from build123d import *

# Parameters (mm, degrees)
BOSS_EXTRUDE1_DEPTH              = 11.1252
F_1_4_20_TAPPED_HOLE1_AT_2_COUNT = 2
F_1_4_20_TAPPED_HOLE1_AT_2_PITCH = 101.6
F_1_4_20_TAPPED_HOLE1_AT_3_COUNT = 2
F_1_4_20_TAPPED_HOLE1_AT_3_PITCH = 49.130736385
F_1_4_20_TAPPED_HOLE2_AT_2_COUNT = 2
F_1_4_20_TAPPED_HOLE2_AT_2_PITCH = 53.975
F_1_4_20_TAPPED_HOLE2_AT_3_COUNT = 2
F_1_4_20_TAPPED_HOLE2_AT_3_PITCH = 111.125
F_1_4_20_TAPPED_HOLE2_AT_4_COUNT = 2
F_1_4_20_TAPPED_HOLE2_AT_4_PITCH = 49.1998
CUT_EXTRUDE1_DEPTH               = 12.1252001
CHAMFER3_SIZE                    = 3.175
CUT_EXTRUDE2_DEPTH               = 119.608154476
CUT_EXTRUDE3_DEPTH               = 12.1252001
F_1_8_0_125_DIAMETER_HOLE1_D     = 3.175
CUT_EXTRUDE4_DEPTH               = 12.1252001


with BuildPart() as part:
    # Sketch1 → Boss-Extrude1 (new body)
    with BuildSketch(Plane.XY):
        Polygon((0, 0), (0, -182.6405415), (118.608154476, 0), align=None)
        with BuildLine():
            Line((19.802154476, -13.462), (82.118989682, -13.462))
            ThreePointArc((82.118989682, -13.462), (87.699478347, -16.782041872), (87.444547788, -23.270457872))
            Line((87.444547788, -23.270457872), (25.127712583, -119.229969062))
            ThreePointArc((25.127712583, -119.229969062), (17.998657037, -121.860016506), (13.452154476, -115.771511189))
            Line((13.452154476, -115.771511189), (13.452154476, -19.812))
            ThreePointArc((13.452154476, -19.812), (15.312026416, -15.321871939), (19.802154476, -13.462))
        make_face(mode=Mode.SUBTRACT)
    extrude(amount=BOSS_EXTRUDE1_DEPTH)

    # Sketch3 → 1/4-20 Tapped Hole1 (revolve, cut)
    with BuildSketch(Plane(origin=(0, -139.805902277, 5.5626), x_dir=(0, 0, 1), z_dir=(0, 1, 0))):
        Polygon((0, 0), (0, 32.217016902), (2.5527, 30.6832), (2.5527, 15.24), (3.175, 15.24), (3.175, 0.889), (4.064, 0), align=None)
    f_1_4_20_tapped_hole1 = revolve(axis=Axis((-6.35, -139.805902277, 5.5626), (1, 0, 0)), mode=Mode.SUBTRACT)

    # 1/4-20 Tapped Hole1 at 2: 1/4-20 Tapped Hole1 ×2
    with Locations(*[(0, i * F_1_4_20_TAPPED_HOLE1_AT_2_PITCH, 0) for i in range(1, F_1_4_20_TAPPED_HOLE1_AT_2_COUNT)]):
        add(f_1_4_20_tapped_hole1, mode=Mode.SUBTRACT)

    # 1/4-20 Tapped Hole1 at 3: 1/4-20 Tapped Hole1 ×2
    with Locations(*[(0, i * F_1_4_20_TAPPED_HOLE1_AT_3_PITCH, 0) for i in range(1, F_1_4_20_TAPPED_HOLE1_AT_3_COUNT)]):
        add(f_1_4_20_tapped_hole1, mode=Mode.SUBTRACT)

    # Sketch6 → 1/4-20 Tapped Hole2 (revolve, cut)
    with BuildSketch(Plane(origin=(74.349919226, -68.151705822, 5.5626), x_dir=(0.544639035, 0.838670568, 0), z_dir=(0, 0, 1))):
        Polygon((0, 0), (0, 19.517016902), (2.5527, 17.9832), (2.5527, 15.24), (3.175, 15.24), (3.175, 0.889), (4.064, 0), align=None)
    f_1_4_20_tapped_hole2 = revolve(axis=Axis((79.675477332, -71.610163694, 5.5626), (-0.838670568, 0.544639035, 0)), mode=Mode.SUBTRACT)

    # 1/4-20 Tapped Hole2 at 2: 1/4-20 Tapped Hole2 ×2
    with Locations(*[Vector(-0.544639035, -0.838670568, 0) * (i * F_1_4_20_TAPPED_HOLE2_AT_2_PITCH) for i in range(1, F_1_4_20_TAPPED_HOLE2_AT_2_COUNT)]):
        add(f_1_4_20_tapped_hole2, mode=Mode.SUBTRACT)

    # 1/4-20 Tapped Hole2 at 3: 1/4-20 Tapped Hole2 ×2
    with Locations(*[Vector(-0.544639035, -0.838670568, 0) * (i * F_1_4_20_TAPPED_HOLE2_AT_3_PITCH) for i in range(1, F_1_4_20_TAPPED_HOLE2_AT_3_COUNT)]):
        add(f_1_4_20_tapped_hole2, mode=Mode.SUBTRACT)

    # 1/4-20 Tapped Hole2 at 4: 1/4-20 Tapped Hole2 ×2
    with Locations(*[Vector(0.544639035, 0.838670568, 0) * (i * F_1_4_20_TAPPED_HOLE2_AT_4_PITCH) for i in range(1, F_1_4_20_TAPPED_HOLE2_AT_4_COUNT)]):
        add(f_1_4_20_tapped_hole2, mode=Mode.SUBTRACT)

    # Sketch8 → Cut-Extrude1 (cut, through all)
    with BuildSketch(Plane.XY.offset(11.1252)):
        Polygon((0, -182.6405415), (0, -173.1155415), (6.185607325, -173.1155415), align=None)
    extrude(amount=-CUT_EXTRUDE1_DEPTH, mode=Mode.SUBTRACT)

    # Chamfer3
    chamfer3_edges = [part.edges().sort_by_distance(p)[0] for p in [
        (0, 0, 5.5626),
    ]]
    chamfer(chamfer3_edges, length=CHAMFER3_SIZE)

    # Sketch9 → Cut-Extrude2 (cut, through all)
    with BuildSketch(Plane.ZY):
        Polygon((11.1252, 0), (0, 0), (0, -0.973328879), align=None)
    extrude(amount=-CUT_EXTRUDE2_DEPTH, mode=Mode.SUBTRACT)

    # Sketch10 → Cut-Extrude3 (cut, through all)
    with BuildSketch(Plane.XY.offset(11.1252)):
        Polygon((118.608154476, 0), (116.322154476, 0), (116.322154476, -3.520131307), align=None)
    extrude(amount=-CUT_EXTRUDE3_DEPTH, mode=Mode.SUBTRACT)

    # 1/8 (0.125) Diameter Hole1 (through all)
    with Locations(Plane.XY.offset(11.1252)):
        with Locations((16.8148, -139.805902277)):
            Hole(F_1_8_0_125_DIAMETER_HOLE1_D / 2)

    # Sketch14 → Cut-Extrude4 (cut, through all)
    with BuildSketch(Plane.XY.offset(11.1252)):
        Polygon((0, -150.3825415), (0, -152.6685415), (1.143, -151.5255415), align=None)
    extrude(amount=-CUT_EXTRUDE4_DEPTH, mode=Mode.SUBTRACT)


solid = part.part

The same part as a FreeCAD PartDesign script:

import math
import FreeCAD as App
import Part
import Sketcher
from FreeCAD import Vector
Q = App.Units.Quantity


def edges_at(feature, points):
    """Names of the edges that pass closest to the given points."""
    edges = feature.Shape.Edges
    near = lambda p: min(range(len(edges)), key=lambda i: edges[i].distToShape(Part.Vertex(*p))[0])
    return sorted({f"Edge{near(p) + 1}" for p in points})

doc = App.newDocument("Part")
body = doc.addObject("PartDesign::Body", "Body")

# Sketch on XY plane
sketch1 = doc.addObject("Sketcher::SketchObject", "Sketch")
body.addObject(sketch1)
sketch1.AttachmentSupport = (doc.XY_Plane, [""])
sketch1.MapMode = "FlatFace"
sketch1.addGeometry([
    Part.LineSegment(Vector(0, 0, 0), Vector(0, -183, 0)),  # 0
    Part.LineSegment(Vector(0, -183, 0), Vector(119, 0, 0)),  # 1
    Part.LineSegment(Vector(119, 0, 0), Vector(0, 0, 0)),  # 2
    Part.ArcOfCircle(Part.Circle(Vector(20, -20, 0), Vector(0, 0, 1), 6), math.radians(90), math.radians(180)),  # 3
    Part.LineSegment(Vector(20, -13, 0), Vector(82, -13, 0)),  # 4
    Part.ArcOfCircle(Part.Circle(Vector(82, -20, 0), Vector(0, 0, 1), 6), math.radians(-33), math.radians(90)),  # 5
    Part.LineSegment(Vector(87, -23, 0), Vector(25, -119, 0)),  # 6
    Part.ArcOfCircle(Part.Circle(Vector(20, -116, 0), Vector(0, 0, 1), 6), math.radians(180), math.radians(327)),  # 7
    Part.LineSegment(Vector(13, -116, 0), Vector(13, -20, 0)),  # 8
], False)
sketch1.addConstraint([
    Sketcher.Constraint("Coincident", 0, 2, 1, 1),
    Sketcher.Constraint("Coincident", 1, 2, 2, 1),
    Sketcher.Constraint("Coincident", 2, 2, 0, 1),
    Sketcher.Constraint("Tangent", 3, 1, 4, 1),
    Sketcher.Constraint("Tangent", 4, 2, 5, 2),
    Sketcher.Constraint("Tangent", 5, 1, 6, 1),
    Sketcher.Constraint("Tangent", 6, 2, 7, 2),
    Sketcher.Constraint("Tangent", 7, 1, 8, 1),
    Sketcher.Constraint("Tangent", 8, 2, 3, 2),
    Sketcher.Constraint("Vertical", 0),
    Sketcher.Constraint("Horizontal", 2),
    Sketcher.Constraint("Horizontal", 4),
    Sketcher.Constraint("Vertical", 8),
    Sketcher.Constraint("Coincident", 2, 2, -1, 1),
    Sketcher.Constraint("Equal", 3, 5),
    Sketcher.Constraint("Equal", 5, 7),
    Sketcher.Constraint("Parallel", 1, 6),
    Sketcher.Constraint("Radius", 3, Q("0.25 in")),
    Sketcher.Constraint("Angle", 1, Q("57 deg")),
    Sketcher.Constraint("DistanceY", 3, 3, -1, 1, Q("0.78 in")),
    Sketcher.Constraint("DistanceX", 3, 3, 1, 2, Q("3.89 in")),
    Sketcher.Constraint("Distance", 6, 114.418599),
    Sketcher.Constraint("DistanceY", 0, 2, 0, 1, 182.640542),
])
pad1 = doc.addObject("PartDesign::Pad", "Pad")
body.addObject(pad1)
pad1.Profile = sketch1
pad1.Length = Q("0.438 in")

# Sketch on XZ plane
sketch2 = doc.addObject("Sketcher::SketchObject", "Sketch001")
body.addObject(sketch2)
sketch2.AttachmentSupport = (doc.XZ_Plane, [""])
sketch2.MapMode = "FlatFace"
sketch2.AttachmentOffset = App.Placement(Vector(0, 0, 139.805902), App.Rotation())
sketch2.addGeometry([
    Part.LineSegment(Vector(32.2, 5.6, 0), Vector(0, 5.6, 0)),  # 0
    Part.LineSegment(Vector(0, 5.6, 0), Vector(0, 9.6, 0)),  # 1
    Part.LineSegment(Vector(0, 9.6, 0), Vector(0.9, 8.7, 0)),  # 2
    Part.LineSegment(Vector(0.9, 8.7, 0), Vector(15.2, 8.7, 0)),  # 3
    Part.LineSegment(Vector(15.2, 8.7, 0), Vector(15.2, 8.1, 0)),  # 4
    Part.LineSegment(Vector(15.2, 8.1, 0), Vector(30.7, 8.1, 0)),  # 5
    Part.LineSegment(Vector(30.7, 8.1, 0), Vector(32.2, 5.6, 0)),  # 6
], False)
sketch2.addGeometry(Part.LineSegment(Vector(0, 5.6, 0), Vector(32.2, 5.6, 0)), True)  # axis
sketch2.addConstraint([
    Sketcher.Constraint("Coincident", 0, 2, 1, 1),
    Sketcher.Constraint("Coincident", 1, 2, 2, 1),
    Sketcher.Constraint("Coincident", 2, 2, 3, 1),
    Sketcher.Constraint("Coincident", 3, 2, 4, 1),
    Sketcher.Constraint("Coincident", 4, 2, 5, 1),
    Sketcher.Constraint("Coincident", 5, 2, 6, 1),
    Sketcher.Constraint("Coincident", 6, 2, 0, 1),
    Sketcher.Constraint("Horizontal", 0),
    Sketcher.Constraint("Vertical", 1),
    Sketcher.Constraint("Horizontal", 3),
    Sketcher.Constraint("Vertical", 4),
    Sketcher.Constraint("Horizontal", 5),
    Sketcher.Constraint("Horizontal", 7),
    Sketcher.Constraint("Coincident", 7, 1, 0, 2),
    Sketcher.Constraint("PointOnObject", 0, 2, -2),
    Sketcher.Constraint("Equal", 0, 7),
    Sketcher.Constraint("Angle", 2, Q("-45 deg")),
    Sketcher.Constraint("Angle", 6, Q("-59 deg")),
    Sketcher.Constraint("DistanceY", 1, 1, 1, 2, Q("0.16 in")),
    Sketcher.Constraint("DistanceX", -1, 1, 3, 2, Q("0.6 in")),
    Sketcher.Constraint("DistanceX", 3, 1, 3, 2, Q("0.565 in")),
    Sketcher.Constraint("DistanceX", 5, 1, 5, 2, Q("0.608 in")),
    Sketcher.Constraint("DistanceY", 4, 2, 4, 1, Q("0.0245 in")),
    Sketcher.Constraint("DistanceY", -1, 1, 0, 2, Q("0.219 in")),
])
groove = doc.addObject("PartDesign::Groove", "Groove")
body.addObject(groove)
groove.Profile = sketch2
groove.ReferenceAxis = (sketch2, ["Axis0"])
groove.Angle = 360
doc.recompute()

linearpattern = doc.addObject("PartDesign::LinearPattern", "LinearPattern")
body.addObject(linearpattern)
linearpattern.Originals = [groove]
linearpattern.Direction = (doc.Y_Axis, [""])
linearpattern.Mode = "offset"
linearpattern.Offset = Q("4 in")
linearpattern.Occurrences = 2
body.Tip = linearpattern
doc.recompute()

linearpattern2 = doc.addObject("PartDesign::LinearPattern", "LinearPattern001")
body.addObject(linearpattern2)
linearpattern2.Originals = [groove]
linearpattern2.Direction = (doc.Y_Axis, [""])
linearpattern2.Mode = "offset"
linearpattern2.Offset = 49.130736
linearpattern2.Occurrences = 2
body.Tip = linearpattern2

# Sketch on XY plane
sketch3 = doc.addObject("Sketcher::SketchObject", "Sketch002")
body.addObject(sketch3)
sketch3.AttachmentSupport = (doc.XY_Plane, [""])
sketch3.MapMode = "FlatFace"
sketch3.AttachmentOffset = App.Placement(Vector(0, 0, 0.219 * 25.4), App.Rotation())
sketch3.addGeometry([
    Part.LineSegment(Vector(58, -57.5, 0), Vector(74.3, -68.2, 0)),  # 0
    Part.LineSegment(Vector(74.3, -68.2, 0), Vector(76.6, -64.7, 0)),  # 1
    Part.LineSegment(Vector(76.6, -64.7, 0), Vector(75.3, -65, 0)),  # 2
    Part.LineSegment(Vector(75.3, -65, 0), Vector(63.3, -57.2, 0)),  # 3
    Part.LineSegment(Vector(63.3, -57.2, 0), Vector(63, -57.7, 0)),  # 4
    Part.LineSegment(Vector(63, -57.7, 0), Vector(60.7, -56.2, 0)),  # 5
    Part.LineSegment(Vector(60.7, -56.2, 0), Vector(58, -57.5, 0)),  # 6
], False)
sketch3.addGeometry(Part.LineSegment(Vector(74.3, -68.2, 0), Vector(58, -57.5, 0)), True)  # axis
sketch3.addConstraint([
    Sketcher.Constraint("Coincident", 0, 2, 1, 1),
    Sketcher.Constraint("Coincident", 1, 2, 2, 1),
    Sketcher.Constraint("Coincident", 2, 2, 3, 1),
    Sketcher.Constraint("Coincident", 3, 2, 4, 1),
    Sketcher.Constraint("Coincident", 4, 2, 5, 1),
    Sketcher.Constraint("Coincident", 5, 2, 6, 1),
    Sketcher.Constraint("Coincident", 6, 2, 0, 1),
    Sketcher.Constraint("Coincident", 7, 1, 0, 2),
    Sketcher.Constraint("Coincident", 7, 2, 6, 2),
    Sketcher.Constraint("Perpendicular", 0, 1),
    Sketcher.Constraint("Perpendicular", 1, 3),
    Sketcher.Constraint("Perpendicular", 3, 4),
    Sketcher.Constraint("Perpendicular", 4, 5),
    Sketcher.Constraint("Angle", 0, Q("-33 deg")),
    Sketcher.Constraint("Angle", 2, Q("-168 deg")),
    Sketcher.Constraint("Angle", 6, Q("-154 deg")),
    Sketcher.Constraint("Distance", 1, Q("0.16 in")),
    Sketcher.Constraint("Distance", 3, Q("0.565 in")),
    Sketcher.Constraint("Distance", 5, Q("0.108 in")),
    Sketcher.Constraint("Distance", 4, Q("0.0245 in")),
    Sketcher.Constraint("DistanceX", 6, 2, 2, 2, 17.351998),
    Sketcher.Constraint("DistanceX", -1, 1, 0, 2, 74.349919),
    Sketcher.Constraint("DistanceY", 1, 2, -1, 1, 64.743349),
])
groove2 = doc.addObject("PartDesign::Groove", "Groove001")
body.addObject(groove2)
groove2.Profile = sketch3
groove2.ReferenceAxis = (sketch3, ["Axis0"])
groove2.Angle = 360
doc.recompute()

datumline = doc.addObject("PartDesign::Line", "DatumLine")
body.addObject(datumline)
datumline.Placement = App.Placement(Vector(0, 0, 0), App.Rotation(Vector(0, 0, 1), Vector(-0.544639035, -0.838670568, 0)))
linearpattern3 = doc.addObject("PartDesign::LinearPattern", "LinearPattern002")
body.addObject(linearpattern3)
linearpattern3.Originals = [groove2]
linearpattern3.Direction = (datumline, [""])
linearpattern3.Mode = "offset"
linearpattern3.Offset = Q("2.125 in")
linearpattern3.Occurrences = 2
body.Tip = linearpattern3
doc.recompute()

datumline2 = doc.addObject("PartDesign::Line", "DatumLine001")
body.addObject(datumline2)
datumline2.Placement = App.Placement(Vector(0, 0, 0), App.Rotation(Vector(0, 0, 1), Vector(-0.544639035, -0.838670568, 0)))
linearpattern4 = doc.addObject("PartDesign::LinearPattern", "LinearPattern003")
body.addObject(linearpattern4)
linearpattern4.Originals = [groove2]
linearpattern4.Direction = (datumline2, [""])
linearpattern4.Mode = "offset"
linearpattern4.Offset = Q("4.375 in")
linearpattern4.Occurrences = 2
body.Tip = linearpattern4
doc.recompute()

datumline3 = doc.addObject("PartDesign::Line", "DatumLine002")
body.addObject(datumline3)
datumline3.Placement = App.Placement(Vector(0, 0, 0), App.Rotation(Vector(0, 0, 1), Vector(0.544639035, 0.838670568, 0)))
linearpattern5 = doc.addObject("PartDesign::LinearPattern", "LinearPattern004")
body.addObject(linearpattern5)
linearpattern5.Originals = [groove2]
linearpattern5.Direction = (datumline3, [""])
linearpattern5.Mode = "offset"
linearpattern5.Offset = Q("1.937 in")
linearpattern5.Occurrences = 2
body.Tip = linearpattern5

# Sketch on XY plane
sketch4 = doc.addObject("Sketcher::SketchObject", "Sketch003")
body.addObject(sketch4)
sketch4.AttachmentSupport = (doc.XY_Plane, [""])
sketch4.MapMode = "FlatFace"
sketch4.AttachmentOffset = App.Placement(Vector(0, 0, 0.438 * 25.4), App.Rotation())
sketch4.addGeometry([
    Part.LineSegment(Vector(0, -173, 0), Vector(0, -183, 0)),
    Part.LineSegment(Vector(0, -183, 0), Vector(6, -173, 0)),
    Part.LineSegment(Vector(6, -173, 0), Vector(0, -173, 0)),
], False)
sketch4.addConstraint([
    Sketcher.Constraint("Coincident", 0, 2, 1, 1),
    Sketcher.Constraint("Coincident", 1, 2, 2, 1),
    Sketcher.Constraint("Coincident", 2, 2, 0, 1),
    Sketcher.Constraint("Vertical", 0),
    Sketcher.Constraint("Horizontal", 2),
    Sketcher.Constraint("PointOnObject", 0, 2, -2),
    Sketcher.Constraint("Angle", 1, Q("57 deg")),
    Sketcher.Constraint("DistanceY", 0, 2, 0, 1, Q("0.375 in")),
    Sketcher.Constraint("DistanceY", 0, 2, -1, 1, 182.640542),
])
pocket1 = doc.addObject("PartDesign::Pocket", "Pocket")
body.addObject(pocket1)
pocket1.Profile = sketch4
pocket1.Type = "ThroughAll"
doc.recompute()

chamfer = doc.addObject("PartDesign::Chamfer", "Chamfer")
body.addObject(chamfer)
chamfer.Base = (pocket1, edges_at(pocket1, [(0, 0, 5.563)]))
chamfer.Size = Q("0.125 in")

# Sketch on YZ plane
sketch5 = doc.addObject("Sketcher::SketchObject", "Sketch004")
body.addObject(sketch5)
sketch5.AttachmentSupport = (doc.YZ_Plane, [""])
sketch5.MapMode = "FlatFace"
sketch5.addGeometry([
    Part.LineSegment(Vector(0, 11.1, 0), Vector(0, 0, 0)),
    Part.LineSegment(Vector(0, 0, 0), Vector(-1, 0, 0)),
    Part.LineSegment(Vector(-1, 0, 0), Vector(0, 11.1, 0)),
], False)
sketch5.addConstraint([
    Sketcher.Constraint("Coincident", 0, 2, 1, 1),
    Sketcher.Constraint("Coincident", 1, 2, 2, 1),
    Sketcher.Constraint("Coincident", 2, 2, 0, 1),
    Sketcher.Constraint("Vertical", 0),
    Sketcher.Constraint("Horizontal", 1),
    Sketcher.Constraint("Coincident", 0, 2, -1, 1),
    Sketcher.Constraint("Angle", 2, Q("85 deg")),
    Sketcher.Constraint("DistanceY", 0, 2, 0, 1, Q("0.438 in")),
])
pocket2 = doc.addObject("PartDesign::Pocket", "Pocket001")
body.addObject(pocket2)
pocket2.Profile = sketch5
pocket2.Type = "ThroughAll"
pocket2.Reversed = True

# Sketch on XY plane
sketch6 = doc.addObject("Sketcher::SketchObject", "Sketch005")
body.addObject(sketch6)
sketch6.AttachmentSupport = (doc.XY_Plane, [""])
sketch6.MapMode = "FlatFace"
sketch6.AttachmentOffset = App.Placement(Vector(0, 0, 0.438 * 25.4), App.Rotation())
sketch6.addGeometry([
    Part.LineSegment(Vector(118.6, 0, 0), Vector(116.3, 0, 0)),
    Part.LineSegment(Vector(116.3, 0, 0), Vector(116.3, -3.5, 0)),
    Part.LineSegment(Vector(116.3, -3.5, 0), Vector(118.6, 0, 0)),
], False)
sketch6.addConstraint([
    Sketcher.Constraint("Coincident", 0, 2, 1, 1),
    Sketcher.Constraint("Coincident", 1, 2, 2, 1),
    Sketcher.Constraint("Coincident", 2, 2, 0, 1),
    Sketcher.Constraint("Horizontal", 0),
    Sketcher.Constraint("Vertical", 1),
    Sketcher.Constraint("PointOnObject", 0, 2, -1),
    Sketcher.Constraint("Angle", 2, Q("57 deg")),
    Sketcher.Constraint("DistanceX", 0, 2, 0, 1, Q("0.09 in")),
    Sketcher.Constraint("DistanceX", -1, 1, 0, 2, 116.322154),
])
pocket3 = doc.addObject("PartDesign::Pocket", "Pocket002")
body.addObject(pocket3)
pocket3.Profile = sketch6
pocket3.Type = "ThroughAll"

# Sketch on XY plane
sketch7 = doc.addObject("Sketcher::SketchObject", "Sketch006")
body.addObject(sketch7)
sketch7.AttachmentSupport = (doc.XY_Plane, [""])
sketch7.MapMode = "FlatFace"
sketch7.AttachmentOffset = App.Placement(Vector(0, 0, 0.438 * 25.4), App.Rotation())
sketch7.addGeometry(Part.Circle(Vector(16.8, -139.8, 0), Vector(0, 0, 1), 1.6), False)
sketch7.addConstraint([
    Sketcher.Constraint("Diameter", 0, Q("0.125 in")),
    Sketcher.Constraint("DistanceX", -1, 1, 0, 3, Q("0.662 in")),
    Sketcher.Constraint("DistanceY", 0, 3, -1, 1, 139.805902),
])
doc.recompute()
hole = doc.addObject("PartDesign::Hole", "Hole")
body.addObject(hole)
hole.Profile = sketch7
hole.ThreadType = "None"
hole.Diameter = Q("0.125 in")
hole.DepthType = "ThroughAll"

# Sketch on XY plane
sketch8 = doc.addObject("Sketcher::SketchObject", "Sketch007")
body.addObject(sketch8)
sketch8.AttachmentSupport = (doc.XY_Plane, [""])
sketch8.MapMode = "FlatFace"
sketch8.AttachmentOffset = App.Placement(Vector(0, 0, 0.438 * 25.4), App.Rotation())
sketch8.addGeometry([
    Part.LineSegment(Vector(0, -150.4, 0), Vector(0, -152.7, 0)),
    Part.LineSegment(Vector(0, -152.7, 0), Vector(1.1, -151.5, 0)),
    Part.LineSegment(Vector(1.1, -151.5, 0), Vector(0, -150.4, 0)),
], False)
sketch8.addConstraint([
    Sketcher.Constraint("Coincident", 0, 2, 1, 1),
    Sketcher.Constraint("Coincident", 1, 2, 2, 1),
    Sketcher.Constraint("Coincident", 2, 2, 0, 1),
    Sketcher.Constraint("Vertical", 0),
    Sketcher.Constraint("PointOnObject", 0, 2, -2),
    Sketcher.Constraint("Perpendicular", 1, 2),
    Sketcher.Constraint("Equal", 1, 2),
    Sketcher.Constraint("DistanceY", 0, 2, 0, 1, Q("0.09 in")),
    Sketcher.Constraint("DistanceY", 0, 2, -1, 1, 152.668542),
])
pocket4 = doc.addObject("PartDesign::Pocket", "Pocket003")
body.addObject(pocket4)
pocket4.Profile = sketch8
pocket4.Type = "ThroughAll"

doc.recompute()
